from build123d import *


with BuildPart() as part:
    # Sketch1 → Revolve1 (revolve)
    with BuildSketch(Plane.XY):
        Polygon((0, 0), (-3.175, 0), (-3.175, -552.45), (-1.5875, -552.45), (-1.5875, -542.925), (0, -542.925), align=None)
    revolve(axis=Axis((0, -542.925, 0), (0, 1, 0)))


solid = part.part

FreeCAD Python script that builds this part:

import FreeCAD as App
import Part
import Sketcher
from FreeCAD import Vector
Q = App.Units.Quantity


def add_polygon(sketch, points):
    """Adds a closed chain of lines whose ends are joined by coincident constraints."""
    first, n = sketch.GeometryCount, len(points)
    for a, b in zip(points, points[1:] + points[:1]):
        sketch.addGeometry(Part.LineSegment(App.Vector(*a, 0), App.Vector(*b, 0)), False)
    for i in range(n):
        sketch.addConstraint(Sketcher.Constraint("Coincident", first + i, 2, first + (i + 1) % n, 1))

doc = App.newDocument("Part")
body = doc.addObject("PartDesign::Body", "Body")

sketch1 = body.newObject("Sketcher::SketchObject", "Sketch")
sketch1.AttachmentSupport = (doc.getObject("XY_Plane"), [""])
sketch1.MapMode = "FlatFace"
add_polygon(sketch1, [(0, 0), (-3.2, 0), (-3.2, -552.5), (-1.6, -552.5), (-1.6, -542.9), (0, -542.9)])
sketch1.addConstraint([
    Sketcher.Constraint("Horizontal", 0),
    Sketcher.Constraint("Vertical", 1),
    Sketcher.Constraint("Horizontal", 2),
    Sketcher.Constraint("Vertical", 3),
    Sketcher.Constraint("Horizontal", 4),
    Sketcher.Constraint("Vertical", 5),
    Sketcher.Constraint("Coincident", 5, 2, -1, 1),
    Sketcher.Constraint("Equal", 2, 4),
    Sketcher.Constraint("DistanceY", 1, 2, 1, 1, Q("21.75 in")),
    Sketcher.Constraint("DistanceX", 0, 2, 0, 1, Q("0.125 in")),
    Sketcher.Constraint("DistanceY", 3, 1, 3, 2, Q("0.375 in")),
])
revolution = body.newObject("PartDesign::Revolution", "Revolution")
revolution.Profile = sketch1
revolution.ReferenceAxis = (sketch1, ["V_Axis"])
revolution.Angle = 360

doc.recompute()
